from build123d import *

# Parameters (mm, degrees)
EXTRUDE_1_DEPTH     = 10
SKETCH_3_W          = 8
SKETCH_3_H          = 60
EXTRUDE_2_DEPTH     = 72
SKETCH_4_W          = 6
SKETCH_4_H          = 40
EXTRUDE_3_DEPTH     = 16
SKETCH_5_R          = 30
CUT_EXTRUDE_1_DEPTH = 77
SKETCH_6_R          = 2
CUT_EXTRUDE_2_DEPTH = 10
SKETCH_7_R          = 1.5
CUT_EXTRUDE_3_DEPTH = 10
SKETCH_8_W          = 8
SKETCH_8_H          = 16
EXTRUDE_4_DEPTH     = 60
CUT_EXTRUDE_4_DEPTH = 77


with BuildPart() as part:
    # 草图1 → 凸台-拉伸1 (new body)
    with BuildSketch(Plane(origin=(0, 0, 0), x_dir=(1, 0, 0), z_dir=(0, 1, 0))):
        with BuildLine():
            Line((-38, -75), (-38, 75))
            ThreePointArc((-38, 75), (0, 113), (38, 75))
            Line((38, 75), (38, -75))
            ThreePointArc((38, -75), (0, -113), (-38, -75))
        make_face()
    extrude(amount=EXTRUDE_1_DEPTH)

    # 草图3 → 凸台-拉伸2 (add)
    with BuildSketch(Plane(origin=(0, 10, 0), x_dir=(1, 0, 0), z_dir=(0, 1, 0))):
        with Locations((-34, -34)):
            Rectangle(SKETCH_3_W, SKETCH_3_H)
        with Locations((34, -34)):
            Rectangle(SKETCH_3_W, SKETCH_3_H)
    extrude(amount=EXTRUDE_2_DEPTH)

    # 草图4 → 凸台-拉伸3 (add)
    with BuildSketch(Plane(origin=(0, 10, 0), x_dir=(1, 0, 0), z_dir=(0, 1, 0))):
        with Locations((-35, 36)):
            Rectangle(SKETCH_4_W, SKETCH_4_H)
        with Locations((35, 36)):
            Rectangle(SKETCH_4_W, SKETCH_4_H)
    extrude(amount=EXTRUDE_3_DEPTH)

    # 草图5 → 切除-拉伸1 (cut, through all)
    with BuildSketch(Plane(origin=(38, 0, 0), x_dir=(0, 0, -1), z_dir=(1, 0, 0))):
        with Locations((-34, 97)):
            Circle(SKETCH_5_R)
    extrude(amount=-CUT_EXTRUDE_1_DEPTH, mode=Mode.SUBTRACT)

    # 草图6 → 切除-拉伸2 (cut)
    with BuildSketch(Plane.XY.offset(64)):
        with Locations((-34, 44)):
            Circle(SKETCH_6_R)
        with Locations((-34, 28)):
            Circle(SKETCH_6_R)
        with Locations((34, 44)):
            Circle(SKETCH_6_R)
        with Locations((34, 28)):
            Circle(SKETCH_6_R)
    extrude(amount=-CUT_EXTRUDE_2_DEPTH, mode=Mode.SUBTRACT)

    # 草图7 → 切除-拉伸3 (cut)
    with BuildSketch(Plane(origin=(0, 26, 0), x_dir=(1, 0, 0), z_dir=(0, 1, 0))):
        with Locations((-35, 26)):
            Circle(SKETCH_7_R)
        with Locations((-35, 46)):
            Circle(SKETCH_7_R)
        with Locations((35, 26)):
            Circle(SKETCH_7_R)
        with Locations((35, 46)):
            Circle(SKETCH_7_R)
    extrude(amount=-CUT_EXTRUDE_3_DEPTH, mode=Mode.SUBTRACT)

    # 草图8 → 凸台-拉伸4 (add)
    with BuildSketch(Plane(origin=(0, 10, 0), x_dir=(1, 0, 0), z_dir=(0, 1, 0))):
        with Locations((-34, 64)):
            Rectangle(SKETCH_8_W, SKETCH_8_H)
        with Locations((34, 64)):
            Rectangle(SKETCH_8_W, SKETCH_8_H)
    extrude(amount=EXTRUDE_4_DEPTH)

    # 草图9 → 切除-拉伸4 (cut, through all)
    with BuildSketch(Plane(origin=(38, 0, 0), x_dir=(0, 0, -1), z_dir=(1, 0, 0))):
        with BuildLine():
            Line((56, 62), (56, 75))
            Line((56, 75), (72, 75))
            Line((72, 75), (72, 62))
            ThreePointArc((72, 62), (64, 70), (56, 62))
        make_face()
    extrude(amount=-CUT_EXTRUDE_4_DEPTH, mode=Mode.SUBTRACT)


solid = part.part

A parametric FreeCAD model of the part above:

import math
import FreeCAD as App
import Part
import Sketcher
Q = App.Units.Quantity


def add_polygon(sketch, points):
    """Adds a closed chain of lines whose ends are joined by coincident constraints."""
    first, n = sketch.GeometryCount, len(points)
    for a, b in zip(points, points[1:] + points[:1]):
        sketch.addGeometry(Part.LineSegment(App.Vector(*a, 0), App.Vector(*b, 0)), False)
    for i in range(n):
        sketch.addConstraint(Sketcher.Constraint("Coincident", first + i, 2, first + (i + 1) % n, 1))

doc = App.newDocument("Part")
body = doc.addObject("PartDesign::Body", "Body")

sketch1 = body.newObject("Sketcher::SketchObject", "Sketch")
sketch1.AttachmentSupport = (doc.getObject("XZ_Plane"), [""])
sketch1.MapMode = "FlatFace"
sketch1.addGeometry([
    Part.LineSegment(App.Vector(-38, -75, 0), App.Vector(-38, 75, 0)),
    Part.ArcOfCircle(Part.Circle(App.Vector(0, 75, 0), App.Vector(0, 0, 1), 38), math.radians(0), math.radians(180)),
    Part.LineSegment(App.Vector(38, 75, 0), App.Vector(38, -75, 0)),
    Part.ArcOfCircle(Part.Circle(App.Vector(0, -75, 0), App.Vector(0, 0, 1), 38), math.radians(180), math.radians(360)),
], False)
sketch1.addConstraint([
    Sketcher.Constraint("Tangent", 0, 2, 1, 2),
    Sketcher.Constraint("Tangent", 1, 1, 2, 1),
    Sketcher.Constraint("Tangent", 2, 2, 3, 2),
    Sketcher.Constraint("Tangent", 3, 1, 0, 1),
    Sketcher.Constraint("Vertical", 0),
    Sketcher.Constraint("Vertical", 2),
    Sketcher.Constraint("Symmetric", 1, 3, 3, 3, -1, 1),
    Sketcher.Constraint("Radius", 1, Q("38 mm")),
    Sketcher.Constraint("DistanceY", 0, 1, 0, 2, Q("150 mm")),
])
pad1 = body.newObject("PartDesign::Pad", "Pad")
pad1.Profile = sketch1
pad1.Length = 10
pad1.Reversed = True

sketch2 = body.newObject("Sketcher::SketchObject", "Sketch001")
sketch2.AttachmentSupport = (doc.getObject("XZ_Plane"), [""])
sketch2.MapMode = "FlatFace"
sketch2.AttachmentOffset = App.Placement(App.Vector(0, 0, -10), App.Rotation())
add_polygon(sketch2, [(-38, 4), (-38, 64), (-30, 64), (-30, 4)])
add_polygon(sketch2, [(30, 4), (30, 64), (38, 64), (38, 4)])
sketch2.addConstraint([
    Sketcher.Constraint("Vertical", 0),
    Sketcher.Constraint("Horizontal", 1),
    Sketcher.Constraint("Vertical", 2),
    Sketcher.Constraint("Horizontal", 3),
    Sketcher.Constraint("Vertical", 4),
    Sketcher.Constraint("Horizontal", 5),
    Sketcher.Constraint("Vertical", 6),
    Sketcher.Constraint("Horizontal", 7),
    Sketcher.Constraint("Symmetric", 1, 2, 4, 2, -2),
    Sketcher.Constraint("Symmetric", 3, 2, 6, 2, -2),
    Sketcher.Constraint("DistanceX", 1, 1, 1, 2, Q("8 mm")),
    Sketcher.Constraint("DistanceY", 0, 1, 0, 2, Q("60 mm")),
    Sketcher.Constraint("DistanceX", 0, 2, -1, 1, Q("38 mm")),
    Sketcher.Constraint("DistanceY", -1, 1, 0, 2, Q("64 mm")),
])
pad2 = body.newObject("PartDesign::Pad", "Pad001")
pad2.Profile = sketch2
pad2.Length = 72
pad2.Reversed = True

sketch3 = body.newObject("Sketcher::SketchObject", "Sketch002")
sketch3.AttachmentSupport = (doc.getObject("XZ_Plane"), [""])
sketch3.MapMode = "FlatFace"
sketch3.AttachmentOffset = App.Placement(App.Vector(0, 0, -10), App.Rotation())
add_polygon(sketch3, [(-38, -56), (-38, -16), (-32, -16), (-32, -56)])
add_polygon(sketch3, [(32, -56), (32, -16), (38, -16), (38, -56)])
sketch3.addConstraint([
    Sketcher.Constraint("Vertical", 0),
    Sketcher.Constraint("Horizontal", 1),
    Sketcher.Constraint("Vertical", 2),
    Sketcher.Constraint("Horizontal", 3),
    Sketcher.Constraint("Vertical", 4),
    Sketcher.Constraint("Horizontal", 5),
    Sketcher.Constraint("Vertical", 6),
    Sketcher.Constraint("Horizontal", 7),
    Sketcher.Constraint("Symmetric", 1, 2, 4, 2, -2),
    Sketcher.Constraint("Symmetric", 3, 2, 6, 2, -2),
    Sketcher.Constraint("DistanceX", 1, 1, 1, 2, Q("6 mm")),
    Sketcher.Constraint("DistanceY", 0, 1, 0, 2, Q("40 mm")),
    Sketcher.Constraint("DistanceX", 0, 2, -1, 1, Q("38 mm")),
    Sketcher.Constraint("DistanceY", 0, 2, -1, 1, Q("16 mm")),
])
pad3 = body.newObject("PartDesign::Pad", "Pad002")
pad3.Profile = sketch3
pad3.Length = 16
pad3.Reversed = True

sketch4 = body.newObject("Sketcher::SketchObject", "Sketch003")
sketch4.AttachmentSupport = (doc.getObject("YZ_Plane"), [""])
sketch4.MapMode = "FlatFace"
sketch4.AttachmentOffset = App.Placement(App.Vector(0, 0, 38), App.Rotation())
sketch4.addGeometry(Part.Circle(App.Vector(97, 34, 0), App.Vector(0, 0, 1), 30), False)
sketch4.addConstraint([
    Sketcher.Constraint("Diameter", 0, Q("60 mm")),
    Sketcher.Constraint("DistanceX", -1, 1, 0, 3, Q("97 mm")),
    Sketcher.Constraint("DistanceY", -1, 1, 0, 3, Q("34 mm")),
])
pocket1 = body.newObject("PartDesign::Pocket", "Pocket")
pocket1.Profile = sketch4
pocket1.Type = "ThroughAll"

sketch5 = body.newObject("Sketcher::SketchObject", "Sketch004")
sketch5.AttachmentSupport = (doc.getObject("XY_Plane"), [""])
sketch5.MapMode = "FlatFace"
sketch5.AttachmentOffset = App.Placement(App.Vector(0, 0, 64), App.Rotation())
sketch5.addGeometry([
    Part.Circle(App.Vector(-34, 44, 0), App.Vector(0, 0, 1), 2),
    Part.Circle(App.Vector(-34, 28, 0), App.Vector(0, 0, 1), 2),
    Part.Circle(App.Vector(34, 44, 0), App.Vector(0, 0, 1), 2),
    Part.Circle(App.Vector(34, 28, 0), App.Vector(0, 0, 1), 2),
], False)
sketch5.addConstraint([
    Sketcher.Constraint("Equal", 0, 1),
    Sketcher.Constraint("Equal", 1, 2),
    Sketcher.Constraint("Equal", 2, 3),
    Sketcher.Constraint("Symmetric", 0, 3, 2, 3, -2),
    Sketcher.Constraint("Symmetric", 1, 3, 3, 3, -2),
    Sketcher.Constraint("Vertical", 0, 3, 1, 3),
    Sketcher.Constraint("Diameter", 0, Q("4 mm")),
    Sketcher.Constraint("DistanceX", 0, 3, -1, 1, Q("34 mm")),
    Sketcher.Constraint("DistanceY", -1, 1, 0, 3, Q("44 mm")),
    Sketcher.Constraint("DistanceY", -1, 1, 1, 3, Q("28 mm")),
])
pocket2 = body.newObject("PartDesign::Pocket", "Pocket001")
pocket2.Profile = sketch5
pocket2.Length = 10

sketch6 = body.newObject("Sketcher::SketchObject", "Sketch005")
sketch6.AttachmentSupport = (doc.getObject("XZ_Plane"), [""])
sketch6.MapMode = "FlatFace"
sketch6.AttachmentOffset = App.Placement(App.Vector(0, 0, -26), App.Rotation())
sketch6.addGeometry([
    Part.Circle(App.Vector(-35, -26, 0), App.Vector(0, 0, 1), 1.5),
    Part.Circle(App.Vector(-35, -46, 0), App.Vector(0, 0, 1), 1.5),
    Part.Circle(App.Vector(35, -26, 0), App.Vector(0, 0, 1), 1.5),
    Part.Circle(App.Vector(35, -46, 0), App.Vector(0, 0, 1), 1.5),
], False)
sketch6.addConstraint([
    Sketcher.Constraint("Equal", 0, 1),
    Sketcher.Constraint("Equal", 1, 2),
    Sketcher.Constraint("Equal", 2, 3),
    Sketcher.Constraint("Symmetric", 0, 3, 2, 3, -2),
    Sketcher.Constraint("Symmetric", 1, 3, 3, 3, -2),
    Sketcher.Constraint("Vertical", 0, 3, 1, 3),
    Sketcher.Constraint("Diameter", 0, Q("3 mm")),
    Sketcher.Constraint("DistanceX", 0, 3, -1, 1, Q("35 mm")),
    Sketcher.Constraint("DistanceY", 0, 3, -1, 1, Q("26 mm")),
    Sketcher.Constraint("DistanceY", 1, 3, -1, 1, Q("46 mm")),
])
pocket3 = body.newObject("PartDesign::Pocket", "Pocket002")
pocket3.Profile = sketch6
pocket3.Length = 10
pocket3.Reversed = True

sketch7 = body.newObject("Sketcher::SketchObject", "Sketch006")
sketch7.AttachmentSupport = (doc.getObject("XZ_Plane"), [""])
sketch7.MapMode = "FlatFace"
sketch7.AttachmentOffset = App.Placement(App.Vector(0, 0, -10), App.Rotation())
add_polygon(sketch7, [(-38, -72), (-38, -56), (-30, -56), (-30, -72)])
add_polygon(sketch7, [(30, -72), (30, -56), (38, -56), (38, -72)])
sketch7.addConstraint([
    Sketcher.Constraint("Vertical", 0),
    Sketcher.Constraint("Horizontal", 1),
    Sketcher.Constraint("Vertical", 2),
    Sketcher.Constraint("Horizontal", 3),
    Sketcher.Constraint("Vertical", 4),
    Sketcher.Constraint("Horizontal", 5),
    Sketcher.Constraint("Vertical", 6),
    Sketcher.Constraint("Horizontal", 7),
    Sketcher.Constraint("Symmetric", 1, 2, 4, 2, -2),
    Sketcher.Constraint("Symmetric", 3, 2, 6, 2, -2),
    Sketcher.Constraint("DistanceX", 1, 1, 1, 2, Q("8 mm")),
    Sketcher.Constraint("DistanceY", 0, 1, 0, 2, Q("16 mm")),
    Sketcher.Constraint("DistanceX", 0, 2, -1, 1, Q("38 mm")),
    Sketcher.Constraint("DistanceY", 0, 2, -1, 1, Q("56 mm")),
])
pad4 = body.newObject("PartDesign::Pad", "Pad003")
pad4.Profile = sketch7
pad4.Length = 60
pad4.Reversed = True

sketch8 = body.newObject("Sketcher::SketchObject", "Sketch007")
sketch8.AttachmentSupport = (doc.getObject("YZ_Plane"), [""])
sketch8.MapMode = "FlatFace"
sketch8.AttachmentOffset = App.Placement(App.Vector(0, 0, 38), App.Rotation())
sketch8.addGeometry([
    Part.LineSegment(App.Vector(75, -56, 0), App.Vector(62, -56, 0)),
    Part.ArcOfCircle(Part.Circle(App.Vector(62, -64, 0), App.Vector(0, 0, 1), 8), math.radians(-90), math.radians(90)),
    Part.LineSegment(App.Vector(62, -72, 0), App.Vector(75, -72, 0)),
    Part.LineSegment(App.Vector(75, -72, 0), App.Vector(75, -56, 0)),
], False)
sketch8.addConstraint([
    Sketcher.Constraint("Tangent", 0, 2, 1, 2),
    Sketcher.Constraint("Tangent", 1, 1, 2, 1),
    Sketcher.Constraint("Coincident", 2, 2, 3, 1),
    Sketcher.Constraint("Coincident", 3, 2, 0, 1),
    Sketcher.Constraint("Horizontal", 0),
    Sketcher.Constraint("Horizontal", 2),
    Sketcher.Constraint("Vertical", 3),
    Sketcher.Constraint("Radius", 1, Q("8 mm")),
    Sketcher.Constraint("DistanceX", 0, 2, 0, 1, Q("13 mm")),
    Sketcher.Constraint("DistanceX", -1, 1, 1, 3, Q("62 mm")),
    Sketcher.Constraint("DistanceY", 1, 3, -1, 1, Q("64 mm")),
])
pocket4 = body.newObject("PartDesign::Pocket", "Pocket003")
pocket4.Profile = sketch8
pocket4.Type = "ThroughAll"

doc.recompute()
